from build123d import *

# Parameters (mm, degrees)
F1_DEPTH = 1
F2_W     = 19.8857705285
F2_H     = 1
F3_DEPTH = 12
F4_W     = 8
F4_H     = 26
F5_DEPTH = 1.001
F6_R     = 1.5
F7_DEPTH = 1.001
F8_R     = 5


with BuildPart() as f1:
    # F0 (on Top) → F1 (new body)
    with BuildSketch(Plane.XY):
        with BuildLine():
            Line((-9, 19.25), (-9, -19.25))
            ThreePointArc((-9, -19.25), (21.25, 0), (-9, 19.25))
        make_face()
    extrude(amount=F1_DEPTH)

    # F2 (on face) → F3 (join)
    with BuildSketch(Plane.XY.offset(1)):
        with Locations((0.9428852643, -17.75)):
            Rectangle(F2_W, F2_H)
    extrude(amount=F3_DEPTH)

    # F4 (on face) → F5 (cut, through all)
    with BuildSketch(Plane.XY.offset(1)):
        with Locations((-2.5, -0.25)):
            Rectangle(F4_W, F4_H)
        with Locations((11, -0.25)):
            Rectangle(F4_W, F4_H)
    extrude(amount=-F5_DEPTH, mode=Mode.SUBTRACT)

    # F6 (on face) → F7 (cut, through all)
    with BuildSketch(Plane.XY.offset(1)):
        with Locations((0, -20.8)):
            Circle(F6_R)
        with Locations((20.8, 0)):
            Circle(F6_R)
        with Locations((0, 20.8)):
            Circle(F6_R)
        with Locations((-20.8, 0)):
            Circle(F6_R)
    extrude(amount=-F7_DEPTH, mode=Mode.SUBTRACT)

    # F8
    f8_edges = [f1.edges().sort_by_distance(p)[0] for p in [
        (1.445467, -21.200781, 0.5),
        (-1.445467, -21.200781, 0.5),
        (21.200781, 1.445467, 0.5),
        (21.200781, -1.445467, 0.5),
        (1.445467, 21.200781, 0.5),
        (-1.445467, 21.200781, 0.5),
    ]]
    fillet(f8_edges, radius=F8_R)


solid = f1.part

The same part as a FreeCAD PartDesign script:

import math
import FreeCAD as App
import Part
import Sketcher
from FreeCAD import Vector


def edges_at(feature, points):
    """Names of the edges that pass closest to the given points."""
    edges = feature.Shape.Edges
    near = lambda p: min(range(len(edges)), key=lambda i: edges[i].distToShape(Part.Vertex(*p))[0])
    return sorted({f"Edge{near(p) + 1}" for p in points})


def add_polygon(sketch, points):
    """Adds a closed chain of lines whose ends are joined by coincident constraints."""
    first, n = sketch.GeometryCount, len(points)
    for a, b in zip(points, points[1:] + points[:1]):
        sketch.addGeometry(Part.LineSegment(App.Vector(*a, 0), App.Vector(*b, 0)), False)
    for i in range(n):
        sketch.addConstraint(Sketcher.Constraint("Coincident", first + i, 2, first + (i + 1) % n, 1))

doc = App.newDocument("Part")
body = doc.addObject("PartDesign::Body", "Body")

# Sketch on XY plane
sketch1 = doc.addObject("Sketcher::SketchObject", "Sketch")
body.addObject(sketch1)
sketch1.AttachmentSupport = (doc.XY_Plane, [""])
sketch1.MapMode = "FlatFace"
sketch1.addGeometry([
    Part.LineSegment(Vector(-9, 19, 0), Vector(-9, -19, 0)),
    Part.ArcOfCircle(Part.Circle(Vector(0, 0, 0), Vector(0, 0, 1), 21), math.radians(-115), math.radians(115)),
], False)
sketch1.addConstraint([
    Sketcher.Constraint("Coincident", 0, 1, 1, 2),
    Sketcher.Constraint("Coincident", 1, 1, 0, 2),
    Sketcher.Constraint("Vertical", 0),
    Sketcher.Constraint("Coincident", 1, 3, -1, 1),
    Sketcher.Constraint("Radius", 1, 21.25),
    Sketcher.Constraint("DistanceY", 0, 2, 0, 1, 38.5),
])
pad1 = doc.addObject("PartDesign::Pad", "Pad")
body.addObject(pad1)
pad1.Profile = sketch1
pad1.Length = 1

# Sketch on XY plane
sketch2 = doc.addObject("Sketcher::SketchObject", "Sketch001")
body.addObject(sketch2)
sketch2.AttachmentSupport = (doc.XY_Plane, [""])
sketch2.MapMode = "FlatFace"
sketch2.AttachmentOffset = App.Placement(Vector(0, 0, 1), App.Rotation())
add_polygon(sketch2, [(-9, -17.2), (-9, -18.2), (10.9, -18.2), (10.9, -17.2)])  # lines 0-3
sketch2.addConstraint([
    Sketcher.Constraint("Vertical", 0),
    Sketcher.Constraint("Horizontal", 1),
    Sketcher.Constraint("Vertical", 2),
    Sketcher.Constraint("Horizontal", 3),
    Sketcher.Constraint("DistanceY", 0, 2, 0, 1, 1.0),
    Sketcher.Constraint("DistanceX", 0, 2, -1, 1, 9.0),
    Sketcher.Constraint("DistanceY", 0, 2, -1, 1, 18.25),
    Sketcher.Constraint("DistanceX", 1, 1, 1, 2, 19.885771),
])
pad2 = doc.addObject("PartDesign::Pad", "Pad001")
body.addObject(pad2)
pad2.Profile = sketch2
pad2.Length = 12

# Sketch on XY plane
sketch3 = doc.addObject("Sketcher::SketchObject", "Sketch002")
body.addObject(sketch3)
sketch3.AttachmentSupport = (doc.XY_Plane, [""])
sketch3.MapMode = "FlatFace"
sketch3.AttachmentOffset = App.Placement(Vector(0, 0, 1), App.Rotation())
add_polygon(sketch3, [(-6, 13), (-6, -13), (2, -13), (2, 13)])  # lines 0-3
add_polygon(sketch3, [(7, 13), (7, -13), (15, -13), (15, 13)])  # lines 4-7
sketch3.addConstraint([
    Sketcher.Constraint("Vertical", 0),
    Sketcher.Constraint("Horizontal", 1),
    Sketcher.Constraint("Vertical", 2),
    Sketcher.Constraint("Horizontal", 3),
    Sketcher.Constraint("Vertical", 4),
    Sketcher.Constraint("Horizontal", 5),
    Sketcher.Constraint("Vertical", 6),
    Sketcher.Constraint("Horizontal", 7),
    Sketcher.Constraint("Horizontal", 1, 2, 4, 2),
    Sketcher.Constraint("Horizontal", 3, 2, 6, 2),
    Sketcher.Constraint("Equal", 3, 5),
    Sketcher.Constraint("DistanceX", 1, 1, 1, 2, 8.0),
    Sketcher.Constraint("DistanceY", 0, 2, 0, 1, 26.0),
    Sketcher.Constraint("DistanceX", -1, 1, 4, 2, 7.0),
    Sketcher.Constraint("DistanceX", 0, 2, -1, 1, 6.5),
    Sketcher.Constraint("DistanceY", 0, 2, -1, 1, 13.25),
])
pocket1 = doc.addObject("PartDesign::Pocket", "Pocket")
body.addObject(pocket1)
pocket1.Profile = sketch3
pocket1.Type = "ThroughAll"

# Sketch on XY plane
sketch4 = doc.addObject("Sketcher::SketchObject", "Sketch003")
body.addObject(sketch4)
sketch4.AttachmentSupport = (doc.XY_Plane, [""])
sketch4.MapMode = "FlatFace"
sketch4.AttachmentOffset = App.Placement(Vector(0, 0, 1), App.Rotation())
sketch4.addGeometry([
    Part.Circle(Vector(0, -20.8, 0), Vector(0, 0, 1), 1.5),
    Part.Circle(Vector(20.8, 0, 0), Vector(0, 0, 1), 1.5),
    Part.Circle(Vector(0, 20.8, 0), Vector(0, 0, 1), 1.5),
    Part.Circle(Vector(-20.8, 0, 0), Vector(0, 0, 1), 1.5),
], False)
sketch4.addConstraint([
    Sketcher.Constraint("Equal", 0, 1),
    Sketcher.Constraint("Equal", 1, 2),
    Sketcher.Constraint("Equal", 2, 3),
    Sketcher.Constraint("Symmetric", 0, 3, 2, 3, -1, 1),
    Sketcher.Constraint("Symmetric", 1, 3, 3, 3, -1, 1),
    Sketcher.Constraint("PointOnObject", 0, 3, -2),
    Sketcher.Constraint("PointOnObject", 1, 3, -1),
    Sketcher.Constraint("Diameter", 0, 3.0),
    Sketcher.Constraint("DistanceY", 0, 3, -1, 1, 20.8),
    Sketcher.Constraint("DistanceX", -1, 1, 1, 3, 20.8),
])
pocket2 = doc.addObject("PartDesign::Pocket", "Pocket001")
body.addObject(pocket2)
pocket2.Profile = sketch4
pocket2.Type = "ThroughAll"
doc.recompute()

fillet = doc.addObject("PartDesign::Fillet", "Fillet")
body.addObject(fillet)
fillet.Base = (pocket2, edges_at(pocket2, [
    (1.445, -21.201, 0.5),
    (-1.445, -21.201, 0.5),
    (21.201, 1.445, 0.5),
    (21.201, -1.445, 0.5),
    (1.445, 21.201, 0.5),
    (-1.445, 21.201, 0.5),
]))
fillet.Radius = 5

doc.recompute()
